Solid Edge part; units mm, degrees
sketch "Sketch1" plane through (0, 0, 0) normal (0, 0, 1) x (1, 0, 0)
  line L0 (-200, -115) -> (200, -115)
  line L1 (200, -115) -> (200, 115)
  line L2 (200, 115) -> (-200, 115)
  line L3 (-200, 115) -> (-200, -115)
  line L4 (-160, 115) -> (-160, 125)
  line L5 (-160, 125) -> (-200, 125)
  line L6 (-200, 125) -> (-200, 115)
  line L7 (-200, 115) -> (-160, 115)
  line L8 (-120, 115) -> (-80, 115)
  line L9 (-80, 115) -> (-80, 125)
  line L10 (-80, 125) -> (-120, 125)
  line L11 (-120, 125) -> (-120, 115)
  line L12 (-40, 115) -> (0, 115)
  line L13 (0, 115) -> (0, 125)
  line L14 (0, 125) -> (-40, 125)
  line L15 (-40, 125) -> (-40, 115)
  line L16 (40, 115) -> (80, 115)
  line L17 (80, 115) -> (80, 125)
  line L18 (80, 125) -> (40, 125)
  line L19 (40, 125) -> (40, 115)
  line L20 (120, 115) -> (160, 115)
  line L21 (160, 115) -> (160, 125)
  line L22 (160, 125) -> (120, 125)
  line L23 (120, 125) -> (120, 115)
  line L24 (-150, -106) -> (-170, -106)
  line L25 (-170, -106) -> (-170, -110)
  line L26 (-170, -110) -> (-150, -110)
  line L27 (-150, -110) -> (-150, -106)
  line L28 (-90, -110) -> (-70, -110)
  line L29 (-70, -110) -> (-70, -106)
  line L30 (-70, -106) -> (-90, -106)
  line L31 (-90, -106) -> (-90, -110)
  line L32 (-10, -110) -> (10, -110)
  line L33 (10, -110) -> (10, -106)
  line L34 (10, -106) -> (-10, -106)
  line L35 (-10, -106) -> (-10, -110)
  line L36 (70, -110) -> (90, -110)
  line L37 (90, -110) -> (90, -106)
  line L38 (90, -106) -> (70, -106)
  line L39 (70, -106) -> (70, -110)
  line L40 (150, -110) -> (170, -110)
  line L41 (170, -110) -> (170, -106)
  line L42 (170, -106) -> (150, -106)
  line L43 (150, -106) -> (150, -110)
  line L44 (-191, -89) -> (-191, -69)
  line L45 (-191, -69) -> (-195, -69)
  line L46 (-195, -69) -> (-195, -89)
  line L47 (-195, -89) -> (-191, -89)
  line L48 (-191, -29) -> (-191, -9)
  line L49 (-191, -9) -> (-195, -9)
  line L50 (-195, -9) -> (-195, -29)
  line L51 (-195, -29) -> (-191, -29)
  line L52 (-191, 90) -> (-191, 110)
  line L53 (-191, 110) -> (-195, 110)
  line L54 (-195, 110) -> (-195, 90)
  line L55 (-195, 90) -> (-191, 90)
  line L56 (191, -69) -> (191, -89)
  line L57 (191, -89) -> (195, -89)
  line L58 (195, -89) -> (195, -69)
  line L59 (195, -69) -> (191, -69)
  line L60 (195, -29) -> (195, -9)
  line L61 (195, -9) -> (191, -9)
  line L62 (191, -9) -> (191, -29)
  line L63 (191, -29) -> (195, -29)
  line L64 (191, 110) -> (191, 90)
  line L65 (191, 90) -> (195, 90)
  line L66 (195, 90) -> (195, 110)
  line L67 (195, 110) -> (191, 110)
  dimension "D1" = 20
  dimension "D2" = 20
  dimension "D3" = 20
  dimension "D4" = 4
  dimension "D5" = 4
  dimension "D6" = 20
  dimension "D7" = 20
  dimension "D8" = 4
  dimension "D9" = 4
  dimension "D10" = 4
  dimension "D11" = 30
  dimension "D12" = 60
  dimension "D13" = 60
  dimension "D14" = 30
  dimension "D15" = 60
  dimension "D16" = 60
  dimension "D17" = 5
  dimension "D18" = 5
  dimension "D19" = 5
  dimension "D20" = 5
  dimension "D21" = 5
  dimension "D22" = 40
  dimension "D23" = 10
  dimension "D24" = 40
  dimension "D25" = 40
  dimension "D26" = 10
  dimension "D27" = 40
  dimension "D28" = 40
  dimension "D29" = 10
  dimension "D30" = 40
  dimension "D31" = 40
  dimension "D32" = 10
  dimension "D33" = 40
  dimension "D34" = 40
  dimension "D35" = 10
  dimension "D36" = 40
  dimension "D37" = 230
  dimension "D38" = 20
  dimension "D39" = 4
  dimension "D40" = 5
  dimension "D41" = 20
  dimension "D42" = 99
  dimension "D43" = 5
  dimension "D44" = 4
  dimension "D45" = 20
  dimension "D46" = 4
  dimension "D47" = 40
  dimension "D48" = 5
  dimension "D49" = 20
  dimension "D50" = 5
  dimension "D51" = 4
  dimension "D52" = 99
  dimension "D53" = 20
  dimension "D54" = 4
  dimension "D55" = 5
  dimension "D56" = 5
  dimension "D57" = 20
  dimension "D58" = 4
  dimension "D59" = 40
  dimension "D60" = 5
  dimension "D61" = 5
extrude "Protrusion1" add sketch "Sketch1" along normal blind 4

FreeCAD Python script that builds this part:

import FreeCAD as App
import Part
import Sketcher

doc = App.newDocument("Part")
params = doc.addObject("Spreadsheet::Sheet", "Params")
for row, (alias, value) in enumerate([
    ("sketch1_width", "400 mm"),
    ("sketch1_width2", "20 mm"),
    ("sketch1_width3", "4 mm"),
    ("sketch1_height", "230 mm"),
    ("sketch1_height2", "10 mm"),
    ("pad1_length", "4 mm"),
], start=1):
    params.set(f"A{row}", alias)
    params.set(f"B{row}", "=" + value)
    params.setAlias(f"B{row}", alias)

body = doc.addObject("PartDesign::Body", "Body")

# Sketch on XY plane
sketch1 = doc.addObject("Sketcher::SketchObject", "Sketch")
body.addObject(sketch1)
sketch1.AttachmentSupport = (doc.XY_Plane, [""])
sketch1.MapMode = "FlatFace"
sketch1.addGeometry([
    Part.LineSegment(App.Vector(-200, -115, 0), App.Vector(200, -115, 0)),  # 0
    Part.LineSegment(App.Vector(200, -115, 0), App.Vector(200, 115, 0)),  # 1
    Part.LineSegment(App.Vector(200, 115, 0), App.Vector(160, 115, 0)),  # 2
    Part.LineSegment(App.Vector(160, 115, 0), App.Vector(160, 125, 0)),  # 3
    Part.LineSegment(App.Vector(160, 125, 0), App.Vector(120, 125, 0)),  # 4
    Part.LineSegment(App.Vector(120, 125, 0), App.Vector(120, 115, 0)),  # 5
    Part.LineSegment(App.Vector(120, 115, 0), App.Vector(80, 115, 0)),  # 6
    Part.LineSegment(App.Vector(80, 115, 0), App.Vector(80, 125, 0)),  # 7
    Part.LineSegment(App.Vector(80, 125, 0), App.Vector(40, 125, 0)),  # 8
    Part.LineSegment(App.Vector(40, 125, 0), App.Vector(40, 115, 0)),  # 9
    Part.LineSegment(App.Vector(40, 115, 0), App.Vector(0, 115, 0)),  # 10
    Part.LineSegment(App.Vector(0, 115, 0), App.Vector(0, 125, 0)),  # 11
    Part.LineSegment(App.Vector(0, 125, 0), App.Vector(-40, 125, 0)),  # 12
    Part.LineSegment(App.Vector(-40, 125, 0), App.Vector(-40, 115, 0)),  # 13
    Part.LineSegment(App.Vector(-40, 115, 0), App.Vector(-80, 115, 0)),  # 14
    Part.LineSegment(App.Vector(-80, 115, 0), App.Vector(-80, 125, 0)),  # 15
    Part.LineSegment(App.Vector(-80, 125, 0), App.Vector(-120, 125, 0)),  # 16
    Part.LineSegment(App.Vector(-120, 125, 0), App.Vector(-120, 115, 0)),  # 17
    Part.LineSegment(App.Vector(-120, 115, 0), App.Vector(-160, 115, 0)),  # 18
    Part.LineSegment(App.Vector(-160, 115, 0), App.Vector(-160, 125, 0)),  # 19
    Part.LineSegment(App.Vector(-160, 125, 0), App.Vector(-200, 125, 0)),  # 20
    Part.LineSegment(App.Vector(-200, 125, 0), App.Vector(-200, -115, 0)),  # 21
    Part.LineSegment(App.Vector(-170, -106, 0), App.Vector(-150, -106, 0)),  # 22
    Part.LineSegment(App.Vector(-150, -106, 0), App.Vector(-150, -110, 0)),  # 23
    Part.LineSegment(App.Vector(-150, -110, 0), App.Vector(-170, -110, 0)),  # 24
    Part.LineSegment(App.Vector(-170, -110, 0), App.Vector(-170, -106, 0)),  # 25
    Part.LineSegment(App.Vector(-191, -69, 0), App.Vector(-191, -89, 0)),  # 26
    Part.LineSegment(App.Vector(-191, -89, 0), App.Vector(-195, -89, 0)),  # 27
    Part.LineSegment(App.Vector(-195, -89, 0), App.Vector(-195, -69, 0)),  # 28
    Part.LineSegment(App.Vector(-195, -69, 0), App.Vector(-191, -69, 0)),  # 29
    Part.LineSegment(App.Vector(-70, -110, 0), App.Vector(-90, -110, 0)),  # 30
    Part.LineSegment(App.Vector(-90, -110, 0), App.Vector(-90, -106, 0)),  # 31
    Part.LineSegment(App.Vector(-90, -106, 0), App.Vector(-70, -106, 0)),  # 32
    Part.LineSegment(App.Vector(-70, -106, 0), App.Vector(-70, -110, 0)),  # 33
    Part.LineSegment(App.Vector(-191, -9, 0), App.Vector(-191, -29, 0)),  # 34
    Part.LineSegment(App.Vector(-191, -29, 0), App.Vector(-195, -29, 0)),  # 35
    Part.LineSegment(App.Vector(-195, -29, 0), App.Vector(-195, -9, 0)),  # 36
    Part.LineSegment(App.Vector(-195, -9, 0), App.Vector(-191, -9, 0)),  # 37
    Part.LineSegment(App.Vector(10, -110, 0), App.Vector(-10, -110, 0)),  # 38
    Part.LineSegment(App.Vector(-10, -110, 0), App.Vector(-10, -106, 0)),  # 39
    Part.LineSegment(App.Vector(-10, -106, 0), App.Vector(10, -106, 0)),  # 40
    Part.LineSegment(App.Vector(10, -106, 0), App.Vector(10, -110, 0)),  # 41
    Part.LineSegment(App.Vector(90, -110, 0), App.Vector(70, -110, 0)),  # 42
    Part.LineSegment(App.Vector(70, -110, 0), App.Vector(70, -106, 0)),  # 43
    Part.LineSegment(App.Vector(70, -106, 0), App.Vector(90, -106, 0)),  # 44
    Part.LineSegment(App.Vector(90, -106, 0), App.Vector(90, -110, 0)),  # 45
    Part.LineSegment(App.Vector(170, -110, 0), App.Vector(150, -110, 0)),  # 46
    Part.LineSegment(App.Vector(150, -110, 0), App.Vector(150, -106, 0)),  # 47
    Part.LineSegment(App.Vector(150, -106, 0), App.Vector(170, -106, 0)),  # 48
    Part.LineSegment(App.Vector(170, -106, 0), App.Vector(170, -110, 0)),  # 49
    Part.LineSegment(App.Vector(191, -89, 0), App.Vector(191, -69, 0)),  # 50
    Part.LineSegment(App.Vector(191, -69, 0), App.Vector(195, -69, 0)),  # 51
    Part.LineSegment(App.Vector(195, -69, 0), App.Vector(195, -89, 0)),  # 52
    Part.LineSegment(App.Vector(195, -89, 0), App.Vector(191, -89, 0)),  # 53
    Part.LineSegment(App.Vector(195, -9, 0), App.Vector(195, -29, 0)),  # 54
    Part.LineSegment(App.Vector(195, -29, 0), App.Vector(191, -29, 0)),  # 55
    Part.LineSegment(App.Vector(191, -29, 0), App.Vector(191, -9, 0)),  # 56
    Part.LineSegment(App.Vector(191, -9, 0), App.Vector(195, -9, 0)),  # 57
    Part.LineSegment(App.Vector(-191, 110, 0), App.Vector(-191, 90, 0)),  # 58
    Part.LineSegment(App.Vector(-191, 90, 0), App.Vector(-195, 90, 0)),  # 59
    Part.LineSegment(App.Vector(-195, 90, 0), App.Vector(-195, 110, 0)),  # 60
    Part.LineSegment(App.Vector(-195, 110, 0), App.Vector(-191, 110, 0)),  # 61
    Part.LineSegment(App.Vector(191, 90, 0), App.Vector(191, 110, 0)),  # 62
    Part.LineSegment(App.Vector(191, 110, 0), App.Vector(195, 110, 0)),  # 63
    Part.LineSegment(App.Vector(195, 110, 0), App.Vector(195, 90, 0)),  # 64
    Part.LineSegment(App.Vector(195, 90, 0), App.Vector(191, 90, 0)),  # 65
], False)
sketch1.addConstraint([
    Sketcher.Constraint("Coincident", 0, 2, 1, 1),
    Sketcher.Constraint("Coincident", 1, 2, 2, 1),
    Sketcher.Constraint("Coincident", 2, 2, 3, 1),
    Sketcher.Constraint("Coincident", 3, 2, 4, 1),
    Sketcher.Constraint("Coincident", 4, 2, 5, 1),
    Sketcher.Constraint("Coincident", 5, 2, 6, 1),
    Sketcher.Constraint("Coincident", 6, 2, 7, 1),
    Sketcher.Constraint("Coincident", 7, 2, 8, 1),
    Sketcher.Constraint("Coincident", 8, 2, 9, 1),
    Sketcher.Constraint("Coincident", 9, 2, 10, 1),
    Sketcher.Constraint("Coincident", 10, 2, 11, 1),
    Sketcher.Constraint("Coincident", 11, 2, 12, 1),
    Sketcher.Constraint("Coincident", 12, 2, 13, 1),
    Sketcher.Constraint("Coincident", 13, 2, 14, 1),
    Sketcher.Constraint("Coincident", 14, 2, 15, 1),
    Sketcher.Constraint("Coincident", 15, 2, 16, 1),
    Sketcher.Constraint("Coincident", 16, 2, 17, 1),
    Sketcher.Constraint("Coincident", 17, 2, 18, 1),
    Sketcher.Constraint("Coincident", 18, 2, 19, 1),
    Sketcher.Constraint("Coincident", 19, 2, 20, 1),
    Sketcher.Constraint("Coincident", 20, 2, 21, 1),
    Sketcher.Constraint("Coincident", 21, 2, 0, 1),
    Sketcher.Constraint("Coincident", 22, 2, 23, 1),
    Sketcher.Constraint("Coincident", 23, 2, 24, 1),
    Sketcher.Constraint("Coincident", 24, 2, 25, 1),
    Sketcher.Constraint("Coincident", 25, 2, 22, 1),
    Sketcher.Constraint("Coincident", 26, 2, 27, 1),
    Sketcher.Constraint("Coincident", 27, 2, 28, 1),
    Sketcher.Constraint("Coincident", 28, 2, 29, 1),
    Sketcher.Constraint("Coincident", 29, 2, 26, 1),
    Sketcher.Constraint("Coincident", 30, 2, 31, 1),
    Sketcher.Constraint("Coincident", 31, 2, 32, 1),
    Sketcher.Constraint("Coincident", 32, 2, 33, 1),
    Sketcher.Constraint("Coincident", 33, 2, 30, 1),
    Sketcher.Constraint("Coincident", 34, 2, 35, 1),
    Sketcher.Constraint("Coincident", 35, 2, 36, 1),
    Sketcher.Constraint("Coincident", 36, 2, 37, 1),
    Sketcher.Constraint("Coincident", 37, 2, 34, 1),
    Sketcher.Constraint("Coincident", 38, 2, 39, 1),
    Sketcher.Constraint("Coincident", 39, 2, 40, 1),
    Sketcher.Constraint("Coincident", 40, 2, 41, 1),
    Sketcher.Constraint("Coincident", 41, 2, 38, 1),
    Sketcher.Constraint("Coincident", 42, 2, 43, 1),
    Sketcher.Constraint("Coincident", 43, 2, 44, 1),
    Sketcher.Constraint("Coincident", 44, 2, 45, 1),
    Sketcher.Constraint("Coincident", 45, 2, 42, 1),
    Sketcher.Constraint("Coincident", 46, 2, 47, 1),
    Sketcher.Constraint("Coincident", 47, 2, 48, 1),
    Sketcher.Constraint("Coincident", 48, 2, 49, 1),
    Sketcher.Constraint("Coincident", 49, 2, 46, 1),
    Sketcher.Constraint("Coincident", 50, 2, 51, 1),
    Sketcher.Constraint("Coincident", 51, 2, 52, 1),
    Sketcher.Constraint("Coincident", 52, 2, 53, 1),
    Sketcher.Constraint("Coincident", 53, 2, 50, 1),
    Sketcher.Constraint("Coincident", 54, 2, 55, 1),
    Sketcher.Constraint("Coincident", 55, 2, 56, 1),
    Sketcher.Constraint("Coincident", 56, 2, 57, 1),
    Sketcher.Constraint("Coincident", 57, 2, 54, 1),
    Sketcher.Constraint("Coincident", 58, 2, 59, 1),
    Sketcher.Constraint("Coincident", 59, 2, 60, 1),
    Sketcher.Constraint("Coincident", 60, 2, 61, 1),
    Sketcher.Constraint("Coincident", 61, 2, 58, 1),
    Sketcher.Constraint("Coincident", 62, 2, 63, 1),
    Sketcher.Constraint("Coincident", 63, 2, 64, 1),
    Sketcher.Constraint("Coincident", 64, 2, 65, 1),
    Sketcher.Constraint("Coincident", 65, 2, 62, 1),
    Sketcher.Constraint("Horizontal", 0),
    Sketcher.Constraint("Vertical", 1),
    Sketcher.Constraint("Horizontal", 2),
    Sketcher.Constraint("Vertical", 3),
    Sketcher.Constraint("Horizontal", 4),
    Sketcher.Constraint("Vertical", 5),
    Sketcher.Constraint("Horizontal", 6),
    Sketcher.Constraint("Vertical", 7),
    Sketcher.Constraint("Horizontal", 8),
    Sketcher.Constraint("Vertical", 9),
    Sketcher.Constraint("Horizontal", 10),
    Sketcher.Constraint("Vertical", 11),
    Sketcher.Constraint("Horizontal", 12),
    Sketcher.Constraint("Vertical", 13),
    Sketcher.Constraint("Horizontal", 14),
    Sketcher.Constraint("Vertical", 15),
    Sketcher.Constraint("Horizontal", 16),
    Sketcher.Constraint("Vertical", 17),
    Sketcher.Constraint("Horizontal", 18),
    Sketcher.Constraint("Vertical", 19),
    Sketcher.Constraint("Horizontal", 20),
    Sketcher.Constraint("Vertical", 21),
    Sketcher.Constraint("Horizontal", 22),
    Sketcher.Constraint("Vertical", 23),
    Sketcher.Constraint("Horizontal", 24),
    Sketcher.Constraint("Vertical", 25),
    Sketcher.Constraint("Vertical", 26),
    Sketcher.Constraint("Horizontal", 27),
    Sketcher.Constraint("Vertical", 28),
    Sketcher.Constraint("Horizontal", 29),
    Sketcher.Constraint("Horizontal", 30),
    Sketcher.Constraint("Vertical", 31),
    Sketcher.Constraint("Horizontal", 32),
    Sketcher.Constraint("Vertical", 33),
    Sketcher.Constraint("Vertical", 34),
    Sketcher.Constraint("Horizontal", 35),
    Sketcher.Constraint("Vertical", 36),
    Sketcher.Constraint("Horizontal", 37),
    Sketcher.Constraint("Horizontal", 38),
    Sketcher.Constraint("Vertical", 39),
    Sketcher.Constraint("Horizontal", 40),
    Sketcher.Constraint("Vertical", 41),
    Sketcher.Constraint("Horizontal", 42),
    Sketcher.Constraint("Vertical", 43),
    Sketcher.Constraint("Horizontal", 44),
    Sketcher.Constraint("Vertical", 45),
    Sketcher.Constraint("Horizontal", 46),
    Sketcher.Constraint("Vertical", 47),
    Sketcher.Constraint("Horizontal", 48),
    Sketcher.Constraint("Vertical", 49),
    Sketcher.Constraint("Vertical", 50),
    Sketcher.Constraint("Horizontal", 51),
    Sketcher.Constraint("Vertical", 52),
    Sketcher.Constraint("Horizontal", 53),
    Sketcher.Constraint("Vertical", 54),
    Sketcher.Constraint("Horizontal", 55),
    Sketcher.Constraint("Vertical", 56),
    Sketcher.Constraint("Horizontal", 57),
    Sketcher.Constraint("Vertical", 58),
    Sketcher.Constraint("Horizontal", 59),
    Sketcher.Constraint("Vertical", 60),
    Sketcher.Constraint("Horizontal", 61),
    Sketcher.Constraint("Vertical", 62),
    Sketcher.Constraint("Horizontal", 63),
    Sketcher.Constraint("Vertical", 64),
    Sketcher.Constraint("Horizontal", 65),
    Sketcher.Constraint("Symmetric", 1, 2, 21, 2, -1, 1),
    Sketcher.Constraint("Symmetric", 8, 2, 12, 2, -2),
    Sketcher.Constraint("Symmetric", 6, 2, 14, 2, -2),
    Sketcher.Constraint("Symmetric", 4, 2, 16, 2, -2),
    Sketcher.Constraint("Symmetric", 2, 2, 18, 2, -2),
    Sketcher.Constraint("Symmetric", 33, 2, 42, 2, -2),
    Sketcher.Constraint("Symmetric", 31, 2, 44, 2, -2),
    Sketcher.Constraint("Symmetric", 23, 2, 46, 2, -2),
    Sketcher.Constraint("Symmetric", 25, 2, 48, 2, -2),
    Sketcher.Constraint("Symmetric", 29, 2, 50, 2, -2),
    Sketcher.Constraint("Symmetric", 27, 2, 52, 2, -2),
    Sketcher.Constraint("Symmetric", 35, 2, 54, 2, -2),
    Sketcher.Constraint("Symmetric", 37, 2, 56, 2, -2),
    Sketcher.Constraint("Symmetric", 61, 2, 62, 2, -2),
    Sketcher.Constraint("Symmetric", 59, 2, 64, 2, -2),
    Sketcher.Constraint("PointOnObject", 10, 2, -2),
    Sketcher.Constraint("Horizontal", 2, 2, 5, 2),
    Sketcher.Constraint("Horizontal", 4, 2, 7, 2),
    Sketcher.Constraint("Horizontal", 6, 2, 9, 2),
    Sketcher.Constraint("Horizontal", 16, 2, 19, 2),
    Sketcher.Constraint("Horizontal", 24, 2, 30, 2),
    Sketcher.Constraint("Horizontal", 25, 2, 31, 2),
    Sketcher.Constraint("Horizontal", 33, 2, 38, 2),
    Sketcher.Constraint("Horizontal", 32, 2, 39, 2),
    Sketcher.Constraint("Vertical", 29, 2, 34, 2),
    Sketcher.Constraint("Vertical", 28, 2, 35, 2),
    Sketcher.Constraint("Vertical", 37, 2, 58, 2),
    Sketcher.Constraint("Vertical", 36, 2, 59, 2),
    Sketcher.Constraint("Equal", 2, 4),
    Sketcher.Constraint("Equal", 4, 6),
    Sketcher.Constraint("Equal", 6, 8),
    Sketcher.Constraint("Equal", 8, 10),
    Sketcher.Constraint("Equal", 24, 30),
    Sketcher.Constraint("Equal", 32, 38),
    Sketcher.Constraint("Equal", 65, 23),
    Sketcher.Constraint("Equal", 48, 26),
    Sketcher.Constraint("Equal", 28, 34),
    Sketcher.Constraint("Equal", 56, 58),
    Sketcher.Constraint("DistanceX", 0, 1, 0, 2, 400.0),
    Sketcher.Constraint("DistanceX", 22, 1, 22, 2, 20.0),
    Sketcher.Constraint("DistanceX", 27, 2, 27, 1, 4.0),
    Sketcher.Constraint("DistanceY", 1, 1, 1, 2, 230.0),
    Sketcher.Constraint("DistanceY", 3, 1, 3, 2, 10.0),
    Sketcher.Constraint("DistanceX", 22, 2, -1, 1, 150.0),
    Sketcher.Constraint("DistanceY", 22, 2, -1, 1, 106.0),
    Sketcher.Constraint("DistanceX", 26, 2, -1, 1, 191.0),
    Sketcher.Constraint("DistanceY", 26, 2, -1, 1, 89.0),
    Sketcher.Constraint("DistanceX", 30, 2, -1, 1, 90.0),
    Sketcher.Constraint("DistanceY", 34, 2, -1, 1, 29.0),
    Sketcher.Constraint("DistanceX", 38, 2, -1, 1, 10.0),
    Sketcher.Constraint("DistanceY", -1, 1, 58, 2, 90.0),
])
sketch1.setExpression("Constraints[170]", "Params.sketch1_width")
sketch1.setExpression("Constraints[171]", "Params.sketch1_width2")
sketch1.setExpression("Constraints[172]", "Params.sketch1_width3")
sketch1.setExpression("Constraints[173]", "Params.sketch1_height")
sketch1.setExpression("Constraints[174]", "Params.sketch1_height2")
pad1 = doc.addObject("PartDesign::Pad", "Pad")
body.addObject(pad1)
pad1.Profile = sketch1
pad1.setExpression("Length", "Params.pad1_length")

doc.recompute()
